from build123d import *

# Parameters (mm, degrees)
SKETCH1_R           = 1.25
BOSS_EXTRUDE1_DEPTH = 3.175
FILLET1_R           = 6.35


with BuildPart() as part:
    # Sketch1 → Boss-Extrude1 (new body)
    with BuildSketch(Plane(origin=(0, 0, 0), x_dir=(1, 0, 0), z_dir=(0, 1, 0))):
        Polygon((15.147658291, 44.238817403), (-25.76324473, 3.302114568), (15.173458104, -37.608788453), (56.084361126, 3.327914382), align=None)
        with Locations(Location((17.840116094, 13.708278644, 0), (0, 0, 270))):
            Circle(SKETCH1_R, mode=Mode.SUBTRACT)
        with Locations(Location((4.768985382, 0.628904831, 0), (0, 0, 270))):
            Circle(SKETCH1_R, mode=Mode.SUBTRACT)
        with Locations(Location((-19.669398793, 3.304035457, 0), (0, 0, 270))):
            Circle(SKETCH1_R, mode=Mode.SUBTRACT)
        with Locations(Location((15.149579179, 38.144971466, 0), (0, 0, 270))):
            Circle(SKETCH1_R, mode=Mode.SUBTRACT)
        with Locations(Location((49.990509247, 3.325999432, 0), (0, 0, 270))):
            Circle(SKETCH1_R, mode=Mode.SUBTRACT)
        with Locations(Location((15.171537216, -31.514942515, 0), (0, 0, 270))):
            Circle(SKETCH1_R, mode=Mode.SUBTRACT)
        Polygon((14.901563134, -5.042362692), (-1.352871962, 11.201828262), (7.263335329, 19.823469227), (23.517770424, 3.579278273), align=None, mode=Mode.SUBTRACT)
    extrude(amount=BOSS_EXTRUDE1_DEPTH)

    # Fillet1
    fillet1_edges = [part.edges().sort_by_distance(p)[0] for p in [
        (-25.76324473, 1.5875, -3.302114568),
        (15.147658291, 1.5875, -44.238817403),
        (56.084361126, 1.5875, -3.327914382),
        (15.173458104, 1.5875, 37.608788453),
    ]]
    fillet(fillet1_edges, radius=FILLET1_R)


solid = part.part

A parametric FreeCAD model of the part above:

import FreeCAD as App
import Part
import Sketcher

V = App.Vector
Q = App.Units.Quantity


def edges_at(feature, points):
    """Names of the edges that pass closest to the given points."""
    edges = feature.Shape.Edges
    near = lambda p: min(range(len(edges)), key=lambda i: edges[i].distToShape(Part.Vertex(*p))[0])
    return sorted({f"Edge{near(p) + 1}" for p in points})

doc = App.newDocument("Part")
body = doc.addObject("PartDesign::Body", "Body")

# Sketch on XZ plane
sketch1 = body.newObject("Sketcher::SketchObject", "Sketch")
sketch1.AttachmentSupport = (doc.getObject("XZ_Plane"), [""])
sketch1.MapMode = "FlatFace"
sketch1.addGeometry(Part.LineSegment(V(15.1, -44.2, 0), V(-25.8, -3.3, 0)), False)
sketch1.addGeometry(Part.LineSegment(V(-25.8, -3.3, 0), V(15.2, 37.6, 0)), False)
sketch1.addGeometry(Part.LineSegment(V(15.2, 37.6, 0), V(56.1, -3.3, 0)), False)
sketch1.addGeometry(Part.LineSegment(V(56.1, -3.3, 0), V(15.1, -44.2, 0)), False)
sketch1.addGeometry(Part.Circle(V(-19.7, -3.3, 0), V(0, 0, 1), 1.2), False)
sketch1.addGeometry(Part.Circle(V(4.8, -0.6, 0), V(0, 0, 1), 1.2), False)
sketch1.addGeometry(Part.Circle(V(15.2, 31.5, 0), V(0, 0, 1), 1.2), False)
sketch1.addGeometry(Part.LineSegment(V(23.5, -3.6, 0), V(14.9, 5, 0)), False)
sketch1.addGeometry(Part.LineSegment(V(14.9, 5, 0), V(-1.4, -11.2, 0)), False)
sketch1.addGeometry(Part.LineSegment(V(-1.4, -11.2, 0), V(7.3, -19.8, 0)), False)
sketch1.addGeometry(Part.LineSegment(V(7.3, -19.8, 0), V(23.5, -3.6, 0)), False)
sketch1.addGeometry(Part.Circle(V(15.1, -38.1, 0), V(0, 0, 1), 1.2), False)
sketch1.addGeometry(Part.Circle(V(17.8, -13.7, 0), V(0, 0, 1), 1.2), False)
sketch1.addGeometry(Part.Circle(V(50, -3.3, 0), V(0, 0, 1), 1.2), False)
sketch1.addConstraint(Sketcher.Constraint("Coincident", 0, 2, 1, 1))
sketch1.addConstraint(Sketcher.Constraint("Coincident", 1, 2, 2, 1))
sketch1.addConstraint(Sketcher.Constraint("Coincident", 2, 2, 3, 1))
sketch1.addConstraint(Sketcher.Constraint("Coincident", 3, 2, 0, 1))
sketch1.addConstraint(Sketcher.Constraint("Coincident", 7, 2, 8, 1))
sketch1.addConstraint(Sketcher.Constraint("Coincident", 8, 2, 9, 1))
sketch1.addConstraint(Sketcher.Constraint("Coincident", 9, 2, 10, 1))
sketch1.addConstraint(Sketcher.Constraint("Coincident", 10, 2, 7, 1))
sketch1.addConstraint(Sketcher.Constraint("Equal", 4, 5))
sketch1.addConstraint(Sketcher.Constraint("Equal", 5, 6))
sketch1.addConstraint(Sketcher.Constraint("Equal", 6, 11))
sketch1.addConstraint(Sketcher.Constraint("Equal", 11, 12))
sketch1.addConstraint(Sketcher.Constraint("Equal", 12, 13))
sketch1.addConstraint(Sketcher.Constraint("Perpendicular", 0, 1))
sketch1.addConstraint(Sketcher.Constraint("Perpendicular", 1, 2))
sketch1.addConstraint(Sketcher.Constraint("Perpendicular", 2, 3))
sketch1.addConstraint(Sketcher.Constraint("Perpendicular", 3, 7))
sketch1.addConstraint(Sketcher.Constraint("Perpendicular", 7, 8))
sketch1.addConstraint(Sketcher.Constraint("Perpendicular", 8, 9))
sketch1.addConstraint(Sketcher.Constraint("Perpendicular", 9, 10))
sketch1.addConstraint(Sketcher.Constraint("Equal", 0, 1))
sketch1.addConstraint(Sketcher.Constraint("Diameter", 4, 2.5))
sketch1.addConstraint(Sketcher.Constraint("Distance", 0, 57.875))
sketch1.addConstraint(Sketcher.Constraint("Distance", 7, 12.189))
sketch1.addConstraint(Sketcher.Constraint("Distance", 8, 22.98))
sketch1.addConstraint(Sketcher.Constraint("DistanceX", 4, 3, -1, 1, 19.669399))
sketch1.addConstraint(Sketcher.Constraint("DistanceY", 13, 3, -1, 1, 3.325999))
sketch1.addConstraint(Sketcher.Constraint("DistanceY", 4, 3, 7, 2, 8.346398))
sketch1.addConstraint(Sketcher.Constraint("DistanceY", 12, 3, 10, 2, 10.129))
sketch1.addConstraint(Sketcher.Constraint("DistanceX", -1, 1, 11, 3, 15.149579))
sketch1.addConstraint(Sketcher.Constraint("DistanceY", 11, 3, -1, 1, 38.144971))
sketch1.addConstraint(Sketcher.Constraint("DistanceY", 12, 3, -1, 1, 13.708279))
sketch1.addConstraint(Sketcher.Constraint("DistanceX", -1, 1, 13, 3, 49.990509))
sketch1.addConstraint(Sketcher.Constraint("DistanceX", -1, 1, 1, 2, 15.173458))
sketch1.addConstraint(Sketcher.Constraint("DistanceY", -1, 1, 1, 2, 37.608788))
sketch1.addConstraint(Sketcher.Constraint("DistanceX", -1, 1, 2, 2, 56.084361))
sketch1.addConstraint(Sketcher.Constraint("DistanceX", 8, 2, -1, 1, 1.352872))
sketch1.addConstraint(Sketcher.Constraint("DistanceY", 4, 3, 5, 3, 2.675131))
sketch1.addConstraint(Sketcher.Constraint("DistanceX", 5, 3, 6, 3, 10.402552))
sketch1.addConstraint(Sketcher.Constraint("DistanceX", 11, 3, 6, 3, 0.021958))
sketch1.addConstraint(Sketcher.Constraint("DistanceX", 5, 3, 12, 3, 13.071131))
sketch1.addConstraint(Sketcher.Constraint("DistanceY", 12, 3, 6, 3, 45.223221))
pad1 = body.newObject("PartDesign::Pad", "Pad")
pad1.Profile = sketch1
pad1.Length = Q("0.125 in")
pad1.Reversed = True
doc.recompute()

fillet = body.newObject("PartDesign::Fillet", "Fillet")
fillet.Base = (pad1, edges_at(pad1, [
    (-25.763, 1.587, -3.302),
    (15.148, 1.587, -44.239),
    (56.084, 1.587, -3.328),
    (15.173, 1.587, 37.609),
]))
fillet.Radius = Q("0.25 in")

doc.recompute()
